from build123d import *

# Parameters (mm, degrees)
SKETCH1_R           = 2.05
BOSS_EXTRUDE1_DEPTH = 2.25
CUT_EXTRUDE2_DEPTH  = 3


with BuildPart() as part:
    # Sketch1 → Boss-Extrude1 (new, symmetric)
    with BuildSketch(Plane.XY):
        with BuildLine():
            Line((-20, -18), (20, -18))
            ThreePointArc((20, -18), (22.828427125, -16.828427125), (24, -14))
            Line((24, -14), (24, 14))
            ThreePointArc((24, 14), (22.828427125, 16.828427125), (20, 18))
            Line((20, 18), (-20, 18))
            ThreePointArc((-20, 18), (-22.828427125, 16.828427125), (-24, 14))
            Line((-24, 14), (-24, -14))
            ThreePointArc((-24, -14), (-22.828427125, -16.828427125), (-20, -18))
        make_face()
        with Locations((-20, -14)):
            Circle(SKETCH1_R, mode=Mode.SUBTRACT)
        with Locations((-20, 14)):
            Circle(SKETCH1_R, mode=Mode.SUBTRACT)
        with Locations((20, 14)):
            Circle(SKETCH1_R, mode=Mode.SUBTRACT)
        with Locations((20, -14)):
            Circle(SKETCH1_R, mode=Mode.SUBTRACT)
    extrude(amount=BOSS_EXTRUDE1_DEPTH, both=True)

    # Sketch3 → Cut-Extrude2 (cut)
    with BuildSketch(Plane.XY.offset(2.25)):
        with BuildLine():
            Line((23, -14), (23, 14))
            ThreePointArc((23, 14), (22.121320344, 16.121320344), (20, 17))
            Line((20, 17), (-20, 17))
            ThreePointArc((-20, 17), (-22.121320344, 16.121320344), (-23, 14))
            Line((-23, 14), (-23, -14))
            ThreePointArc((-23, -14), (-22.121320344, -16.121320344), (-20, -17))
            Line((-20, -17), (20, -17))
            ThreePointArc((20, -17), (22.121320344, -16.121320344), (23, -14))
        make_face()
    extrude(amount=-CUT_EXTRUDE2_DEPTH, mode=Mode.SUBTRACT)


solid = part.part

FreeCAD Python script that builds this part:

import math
import FreeCAD as App
import Part
import Sketcher

doc = App.newDocument("Part")
params = doc.addObject("Spreadsheet::Sheet", "Params")
for row, (alias, value) in enumerate([
    ("sketch1_radius", "4 mm"),
    ("sketch1_diameter", "4.1 mm"),
    ("sketch1_width", "40 mm"),
    ("sketch1_height", "28 mm"),
    ("pad1_length", "4.5 mm"),
    ("sketch2_radius", "3 mm"),
    ("sketch2_width", "40 mm"),
    ("sketch2_height", "28 mm"),
    ("pocket1_length", "3 mm"),
], start=1):
    params.set(f"A{row}", alias)
    params.set(f"B{row}", "=" + value)
    params.setAlias(f"B{row}", alias)

body = doc.addObject("PartDesign::Body", "Body")

# Sketch on XY plane
sketch1 = body.newObject("Sketcher::SketchObject", "Sketch")
sketch1.AttachmentSupport = (doc.getObject("XY_Plane"), [""])
sketch1.MapMode = "FlatFace"
sketch1.addGeometry([
    Part.LineSegment(App.Vector(-20, -18, 0), App.Vector(20, -18, 0)),  # 0
    Part.ArcOfCircle(Part.Circle(App.Vector(20, -14, 0), App.Vector(0, 0, 1), 4), math.radians(-90), math.radians(0)),  # 1
    Part.LineSegment(App.Vector(24, -14, 0), App.Vector(24, 14, 0)),  # 2
    Part.ArcOfCircle(Part.Circle(App.Vector(20, 14, 0), App.Vector(0, 0, 1), 4), math.radians(0), math.radians(90)),  # 3
    Part.LineSegment(App.Vector(20, 18, 0), App.Vector(-20, 18, 0)),  # 4
    Part.ArcOfCircle(Part.Circle(App.Vector(-20, 14, 0), App.Vector(0, 0, 1), 4), math.radians(90), math.radians(180)),  # 5
    Part.LineSegment(App.Vector(-24, 14, 0), App.Vector(-24, -14, 0)),  # 6
    Part.ArcOfCircle(Part.Circle(App.Vector(-20, -14, 0), App.Vector(0, 0, 1), 4), math.radians(180), math.radians(270)),  # 7
    Part.Circle(App.Vector(-20, -14, 0), App.Vector(0, 0, 1), 2.05),  # 8
    Part.Circle(App.Vector(20, -14, 0), App.Vector(0, 0, 1), 2.05),  # 9
    Part.Circle(App.Vector(-20, 14, 0), App.Vector(0, 0, 1), 2.05),  # 10
    Part.Circle(App.Vector(20, 14, 0), App.Vector(0, 0, 1), 2.05),  # 11
], False)
sketch1.addConstraint([
    Sketcher.Constraint("Tangent", 0, 2, 1, 1),
    Sketcher.Constraint("Tangent", 1, 2, 2, 1),
    Sketcher.Constraint("Tangent", 2, 2, 3, 1),
    Sketcher.Constraint("Tangent", 3, 2, 4, 1),
    Sketcher.Constraint("Tangent", 4, 2, 5, 1),
    Sketcher.Constraint("Tangent", 5, 2, 6, 1),
    Sketcher.Constraint("Tangent", 6, 2, 7, 1),
    Sketcher.Constraint("Tangent", 7, 2, 0, 1),
    Sketcher.Constraint("Horizontal", 0),
    Sketcher.Constraint("Vertical", 2),
    Sketcher.Constraint("Horizontal", 4),
    Sketcher.Constraint("Vertical", 6),
    Sketcher.Constraint("Coincident", 8, 3, 7, 3),
    Sketcher.Constraint("Coincident", 9, 3, 1, 3),
    Sketcher.Constraint("Coincident", 10, 3, 5, 3),
    Sketcher.Constraint("Coincident", 11, 3, 3, 3),
    Sketcher.Constraint("Equal", 1, 3),
    Sketcher.Constraint("Equal", 3, 5),
    Sketcher.Constraint("Equal", 5, 7),
    Sketcher.Constraint("Equal", 8, 9),
    Sketcher.Constraint("Equal", 9, 10),
    Sketcher.Constraint("Equal", 10, 11),
    Sketcher.Constraint("Symmetric", 1, 3, 5, 3, -1, 1),
    Sketcher.Constraint("Radius", 1, 4.0),
    Sketcher.Constraint("Diameter", 8, 4.1),
    Sketcher.Constraint("DistanceX", 0, 1, 0, 2, 40.0),
    Sketcher.Constraint("DistanceY", 2, 1, 2, 2, 28.0),
])
sketch1.setExpression("Constraints[23]", "Params.sketch1_radius")
sketch1.setExpression("Constraints[24]", "Params.sketch1_diameter")
sketch1.setExpression("Constraints[25]", "Params.sketch1_width")
sketch1.setExpression("Constraints[26]", "Params.sketch1_height")
pad1 = body.newObject("PartDesign::Pad", "Pad")
pad1.Profile = sketch1
pad1.setExpression("Length", "Params.pad1_length")
pad1.Midplane = True

# Sketch on XY plane
sketch2 = body.newObject("Sketcher::SketchObject", "Sketch001")
sketch2.AttachmentSupport = (doc.getObject("XY_Plane"), [""])
sketch2.MapMode = "FlatFace"
sketch2.AttachmentOffset = App.Placement(App.Vector(0, 0, 2.25), App.Rotation())
sketch2.addGeometry([
    Part.LineSegment(App.Vector(23, -14, 0), App.Vector(23, 14, 0)),  # 0
    Part.ArcOfCircle(Part.Circle(App.Vector(20, 14, 0), App.Vector(0, 0, 1), 3), math.radians(0), math.radians(90)),  # 1
    Part.LineSegment(App.Vector(20, 17, 0), App.Vector(-20, 17, 0)),  # 2
    Part.ArcOfCircle(Part.Circle(App.Vector(-20, 14, 0), App.Vector(0, 0, 1), 3), math.radians(90), math.radians(180)),  # 3
    Part.LineSegment(App.Vector(-23, 14, 0), App.Vector(-23, -14, 0)),  # 4
    Part.ArcOfCircle(Part.Circle(App.Vector(-20, -14, 0), App.Vector(0, 0, 1), 3), math.radians(180), math.radians(270)),  # 5
    Part.LineSegment(App.Vector(-20, -17, 0), App.Vector(20, -17, 0)),  # 6
    Part.ArcOfCircle(Part.Circle(App.Vector(20, -14, 0), App.Vector(0, 0, 1), 3), math.radians(-90), math.radians(0)),  # 7
], False)
sketch2.addConstraint([
    Sketcher.Constraint("Tangent", 0, 2, 1, 1),
    Sketcher.Constraint("Tangent", 1, 2, 2, 1),
    Sketcher.Constraint("Tangent", 2, 2, 3, 1),
    Sketcher.Constraint("Tangent", 3, 2, 4, 1),
    Sketcher.Constraint("Tangent", 4, 2, 5, 1),
    Sketcher.Constraint("Tangent", 5, 2, 6, 1),
    Sketcher.Constraint("Tangent", 6, 2, 7, 1),
    Sketcher.Constraint("Tangent", 7, 2, 0, 1),
    Sketcher.Constraint("Vertical", 0),
    Sketcher.Constraint("Horizontal", 2),
    Sketcher.Constraint("Vertical", 4),
    Sketcher.Constraint("Horizontal", 6),
    Sketcher.Constraint("Equal", 1, 3),
    Sketcher.Constraint("Equal", 3, 5),
    Sketcher.Constraint("Equal", 5, 7),
    Sketcher.Constraint("Symmetric", 1, 3, 5, 3, -1, 1),
    Sketcher.Constraint("Radius", 1, 3.0),
    Sketcher.Constraint("DistanceX", 2, 2, 2, 1, 40.0),
    Sketcher.Constraint("DistanceY", 0, 1, 0, 2, 28.0),
])
sketch2.setExpression("Constraints[16]", "Params.sketch2_radius")
sketch2.setExpression("Constraints[17]", "Params.sketch2_width")
sketch2.setExpression("Constraints[18]", "Params.sketch2_height")
pocket1 = body.newObject("PartDesign::Pocket", "Pocket")
pocket1.Profile = sketch2
pocket1.setExpression("Length", "Params.pocket1_length")

doc.recompute()
